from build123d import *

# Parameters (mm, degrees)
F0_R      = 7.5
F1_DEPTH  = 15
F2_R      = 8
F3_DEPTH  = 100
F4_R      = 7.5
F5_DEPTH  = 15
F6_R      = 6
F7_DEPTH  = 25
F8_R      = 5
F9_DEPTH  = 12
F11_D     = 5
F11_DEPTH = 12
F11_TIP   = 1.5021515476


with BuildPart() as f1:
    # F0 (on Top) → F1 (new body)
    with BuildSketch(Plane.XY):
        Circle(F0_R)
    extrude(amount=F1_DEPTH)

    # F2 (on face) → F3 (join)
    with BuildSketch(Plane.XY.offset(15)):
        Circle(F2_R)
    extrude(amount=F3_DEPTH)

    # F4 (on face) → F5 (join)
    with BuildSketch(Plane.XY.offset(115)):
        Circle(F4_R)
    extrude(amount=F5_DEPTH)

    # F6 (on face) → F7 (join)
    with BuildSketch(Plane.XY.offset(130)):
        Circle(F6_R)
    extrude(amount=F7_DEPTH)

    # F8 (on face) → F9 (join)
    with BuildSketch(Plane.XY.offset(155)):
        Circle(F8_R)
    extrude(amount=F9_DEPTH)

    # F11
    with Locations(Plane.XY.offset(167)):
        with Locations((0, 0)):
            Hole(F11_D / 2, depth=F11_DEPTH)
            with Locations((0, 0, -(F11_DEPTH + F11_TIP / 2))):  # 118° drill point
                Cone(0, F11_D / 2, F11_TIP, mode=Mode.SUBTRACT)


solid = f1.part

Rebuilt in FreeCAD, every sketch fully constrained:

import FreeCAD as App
import Part
import Sketcher

V = App.Vector

doc = App.newDocument("Part")
body = doc.addObject("PartDesign::Body", "Body")

# Sketch on XY plane
sketch1 = body.newObject("Sketcher::SketchObject", "Sketch")
sketch1.AttachmentSupport = (doc.getObject("XY_Plane"), [""])
sketch1.MapMode = "FlatFace"
sketch1.addGeometry(Part.Circle(V(0, 0, 0), V(0, 0, 1), 8), False)
sketch1.addConstraint([
    Sketcher.Constraint("Coincident", 0, 3, -1, 1),
    Sketcher.Constraint("Diameter", 0, 15.0),
])
pad1 = body.newObject("PartDesign::Pad", "Pad")
pad1.Profile = sketch1
pad1.Length = 15

# Sketch on XY plane
sketch2 = body.newObject("Sketcher::SketchObject", "Sketch001")
sketch2.AttachmentSupport = (doc.getObject("XY_Plane"), [""])
sketch2.MapMode = "FlatFace"
sketch2.AttachmentOffset = App.Placement(V(0, 0, 15), App.Rotation())
sketch2.addGeometry(Part.Circle(V(0, 0, 0), V(0, 0, 1), 8), False)
sketch2.addConstraint([
    Sketcher.Constraint("Coincident", 0, 3, -1, 1),
    Sketcher.Constraint("Diameter", 0, 16.0),
])
pad2 = body.newObject("PartDesign::Pad", "Pad001")
pad2.Profile = sketch2
pad2.Length = 100

# Sketch on XY plane
sketch3 = body.newObject("Sketcher::SketchObject", "Sketch002")
sketch3.AttachmentSupport = (doc.getObject("XY_Plane"), [""])
sketch3.MapMode = "FlatFace"
sketch3.AttachmentOffset = App.Placement(V(0, 0, 115), App.Rotation())
sketch3.addGeometry(Part.Circle(V(0, 0, 0), V(0, 0, 1), 8), False)
sketch3.addConstraint([
    Sketcher.Constraint("Coincident", 0, 3, -1, 1),
    Sketcher.Constraint("Diameter", 0, 15.0),
])
pad3 = body.newObject("PartDesign::Pad", "Pad002")
pad3.Profile = sketch3
pad3.Length = 15

# Sketch on XY plane
sketch4 = body.newObject("Sketcher::SketchObject", "Sketch003")
sketch4.AttachmentSupport = (doc.getObject("XY_Plane"), [""])
sketch4.MapMode = "FlatFace"
sketch4.AttachmentOffset = App.Placement(V(0, 0, 130), App.Rotation())
sketch4.addGeometry(Part.Circle(V(0, 0, 0), V(0, 0, 1), 6), False)
sketch4.addConstraint([
    Sketcher.Constraint("Coincident", 0, 3, -1, 1),
    Sketcher.Constraint("Diameter", 0, 12.0),
])
pad4 = body.newObject("PartDesign::Pad", "Pad003")
pad4.Profile = sketch4
pad4.Length = 25

# Sketch on XY plane
sketch5 = body.newObject("Sketcher::SketchObject", "Sketch004")
sketch5.AttachmentSupport = (doc.getObject("XY_Plane"), [""])
sketch5.MapMode = "FlatFace"
sketch5.AttachmentOffset = App.Placement(V(0, 0, 155), App.Rotation())
sketch5.addGeometry(Part.Circle(V(0, 0, 0), V(0, 0, 1), 5), False)
sketch5.addConstraint([
    Sketcher.Constraint("Coincident", 0, 3, -1, 1),
    Sketcher.Constraint("Diameter", 0, 10.0),
])
pad5 = body.newObject("PartDesign::Pad", "Pad004")
pad5.Profile = sketch5
pad5.Length = 12

# Sketch on XY plane
sketch6 = body.newObject("Sketcher::SketchObject", "Sketch005")
sketch6.AttachmentSupport = (doc.getObject("XY_Plane"), [""])
sketch6.MapMode = "FlatFace"
sketch6.AttachmentOffset = App.Placement(V(0, 0, 167), App.Rotation())
sketch6.addGeometry(Part.Circle(V(0, 0, 0), V(0, 0, 1), 2.5), False)
sketch6.addConstraint([
    Sketcher.Constraint("Coincident", 0, 3, -1, 1),
    Sketcher.Constraint("Diameter", 0, 5.0),
])
doc.recompute()
hole = body.newObject("PartDesign::Hole", "Hole")
hole.Profile = sketch6
hole.ThreadType = "None"
hole.Diameter = 5
hole.DepthType = "Dimension"
hole.Depth = 12
hole.DrillPoint = "Angled"
hole.DrillPointAngle = 118

doc.recompute()
